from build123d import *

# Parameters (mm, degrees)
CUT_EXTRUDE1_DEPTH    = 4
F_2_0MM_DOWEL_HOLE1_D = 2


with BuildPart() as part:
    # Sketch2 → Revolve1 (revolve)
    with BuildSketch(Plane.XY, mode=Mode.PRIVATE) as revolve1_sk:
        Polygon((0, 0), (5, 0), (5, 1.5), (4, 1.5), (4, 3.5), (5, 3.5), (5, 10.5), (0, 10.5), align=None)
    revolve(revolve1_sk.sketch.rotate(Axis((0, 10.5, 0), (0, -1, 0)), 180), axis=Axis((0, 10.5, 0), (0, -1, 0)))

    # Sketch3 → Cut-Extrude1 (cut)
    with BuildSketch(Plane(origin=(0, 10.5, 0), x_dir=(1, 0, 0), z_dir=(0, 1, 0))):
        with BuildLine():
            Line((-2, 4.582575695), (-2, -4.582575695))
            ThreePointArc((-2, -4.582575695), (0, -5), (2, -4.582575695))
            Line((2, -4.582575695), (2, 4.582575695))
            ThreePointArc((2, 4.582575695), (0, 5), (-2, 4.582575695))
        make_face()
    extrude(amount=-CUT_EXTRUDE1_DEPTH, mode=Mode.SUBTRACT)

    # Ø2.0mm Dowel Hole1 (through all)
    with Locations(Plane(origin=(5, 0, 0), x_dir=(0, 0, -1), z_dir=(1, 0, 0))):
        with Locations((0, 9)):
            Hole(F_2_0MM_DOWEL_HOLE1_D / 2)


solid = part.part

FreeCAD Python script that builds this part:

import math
import FreeCAD as App
import Part
import Sketcher
from FreeCAD import Vector
Q = App.Units.Quantity


def add_polygon(sketch, points):
    """Adds a closed chain of lines whose ends are joined by coincident constraints."""
    first, n = sketch.GeometryCount, len(points)
    for a, b in zip(points, points[1:] + points[:1]):
        sketch.addGeometry(Part.LineSegment(App.Vector(*a, 0), App.Vector(*b, 0)), False)
    for i in range(n):
        sketch.addConstraint(Sketcher.Constraint("Coincident", first + i, 2, first + (i + 1) % n, 1))

doc = App.newDocument("Part")
params = doc.addObject("Spreadsheet::Sheet", "Params")
for row, (alias, value) in enumerate([
    ("sketch1_width", "5 mm"),
    ("sketch1_width2", "1 mm"),
    ("sketch1_height", "2 mm"),
    ("sketch1_height2", "7 mm"),
    ("sketch1_height3", "1.5 mm"),
    ("revolution_angle", "360 deg"),
    ("sketch2_radius", "5 mm"),
    ("pocket1_length", "4 mm"),
    ("sketch3_diameter", "2 mm"),
    ("hole_diameter", "2 mm"),
], start=1):
    params.set(f"A{row}", alias)
    params.set(f"B{row}", "=" + value)
    params.setAlias(f"B{row}", alias)

body = doc.addObject("PartDesign::Body", "Body")

sketch1 = doc.addObject("Sketcher::SketchObject", "Sketch")
body.addObject(sketch1)
sketch1.AttachmentSupport = (doc.XY_Plane, [""])
sketch1.MapMode = "FlatFace"
add_polygon(sketch1, [(0, 0), (5, 0), (5, 1.5), (4, 1.5), (4, 3.5), (5, 3.5), (5, 10.5), (0, 10.5)])
sketch1.addConstraint(Sketcher.Constraint("Horizontal", 0))
sketch1.addConstraint(Sketcher.Constraint("Vertical", 1))
sketch1.addConstraint(Sketcher.Constraint("Horizontal", 2))
sketch1.addConstraint(Sketcher.Constraint("Vertical", 3))
sketch1.addConstraint(Sketcher.Constraint("Horizontal", 4))
sketch1.addConstraint(Sketcher.Constraint("Vertical", 5))
sketch1.addConstraint(Sketcher.Constraint("Horizontal", 6))
sketch1.addConstraint(Sketcher.Constraint("Vertical", 7))
sketch1.addConstraint(Sketcher.Constraint("Coincident", 7, 2, -1, 1))
sketch1.addConstraint(Sketcher.Constraint("Vertical", 1, 2, 4, 2))
sketch1.addConstraint(Sketcher.Constraint("DistanceX", 0, 1, 0, 2, Q("5 mm")))
sketch1.addConstraint(Sketcher.Constraint("DistanceX", 2, 2, 2, 1, Q("1 mm")))
sketch1.addConstraint(Sketcher.Constraint("DistanceY", 3, 1, 3, 2, Q("2 mm")))
sketch1.addConstraint(Sketcher.Constraint("DistanceY", 5, 1, 5, 2, Q("7 mm")))
sketch1.addConstraint(Sketcher.Constraint("DistanceY", 1, 1, 1, 2, Q("1.5 mm")))
sketch1.setExpression("Constraints[18]", "Params.sketch1_width")
sketch1.setExpression("Constraints[19]", "Params.sketch1_width2")
sketch1.setExpression("Constraints[20]", "Params.sketch1_height")
sketch1.setExpression("Constraints[21]", "Params.sketch1_height2")
sketch1.setExpression("Constraints[22]", "Params.sketch1_height3")
revolution = doc.addObject("PartDesign::Revolution", "Revolution")
body.addObject(revolution)
revolution.Profile = sketch1
revolution.ReferenceAxis = (sketch1, ["V_Axis"])
revolution.setExpression("Angle", "Params.revolution_angle")

sketch2 = doc.addObject("Sketcher::SketchObject", "Sketch001")
body.addObject(sketch2)
sketch2.AttachmentSupport = (doc.XZ_Plane, [""])
sketch2.MapMode = "FlatFace"
sketch2.AttachmentOffset = App.Placement(Vector(0, 0, -10.5), App.Rotation())
sketch2.addGeometry(Part.LineSegment(Vector(-2, -4.6, 0), Vector(-2, 4.6, 0)), False)
sketch2.addGeometry(Part.ArcOfCircle(Part.Circle(Vector(0, 0, 0), Vector(0, 0, 1), 5), math.radians(66), math.radians(114)), False)
sketch2.addGeometry(Part.LineSegment(Vector(2, 4.6, 0), Vector(2, -4.6, 0)), False)
sketch2.addGeometry(Part.ArcOfCircle(Part.Circle(Vector(0, 0, 0), Vector(0, 0, 1), 5), math.radians(-114), math.radians(-66)), False)
sketch2.addConstraint(Sketcher.Constraint("Coincident", 0, 2, 1, 2))
sketch2.addConstraint(Sketcher.Constraint("Coincident", 1, 1, 2, 1))
sketch2.addConstraint(Sketcher.Constraint("Coincident", 2, 2, 3, 2))
sketch2.addConstraint(Sketcher.Constraint("Coincident", 3, 1, 0, 1))
sketch2.addConstraint(Sketcher.Constraint("Vertical", 0))
sketch2.addConstraint(Sketcher.Constraint("Vertical", 2))
sketch2.addConstraint(Sketcher.Constraint("Coincident", 1, 3, -1, 1))
sketch2.addConstraint(Sketcher.Constraint("Coincident", 3, 3, -1, 1))
sketch2.addConstraint(Sketcher.Constraint("Equal", 1, 3))
sketch2.addConstraint(Sketcher.Constraint("Horizontal", 0, 2, 1, 1))
sketch2.addConstraint(Sketcher.Constraint("Radius", 1, Q("5 mm")))
sketch2.addConstraint(Sketcher.Constraint("DistanceX", 0, 2, -1, 1, Q("2 mm")))
sketch2.setExpression("Constraints[10]", "Params.sketch2_radius")
pocket1 = doc.addObject("PartDesign::Pocket", "Pocket")
body.addObject(pocket1)
pocket1.Profile = sketch2
pocket1.setExpression("Length", "Params.pocket1_length")
pocket1.Reversed = True

sketch3 = doc.addObject("Sketcher::SketchObject", "Sketch002")
body.addObject(sketch3)
sketch3.AttachmentSupport = (doc.YZ_Plane, [""])
sketch3.MapMode = "FlatFace"
sketch3.AttachmentOffset = App.Placement(Vector(0, 0, 5), App.Rotation())
sketch3.addGeometry(Part.Circle(Vector(9, 0, 0), Vector(0, 0, 1), 1), False)
sketch3.addConstraint(Sketcher.Constraint("PointOnObject", 0, 3, -1))
sketch3.addConstraint(Sketcher.Constraint("Diameter", 0, Q("2 mm")))
sketch3.addConstraint(Sketcher.Constraint("DistanceX", -1, 1, 0, 3, Q("9 mm")))
sketch3.setExpression("Constraints[1]", "Params.sketch3_diameter")
doc.recompute()
hole = doc.addObject("PartDesign::Hole", "Hole")
body.addObject(hole)
hole.Profile = sketch3
hole.ThreadType = "None"
hole.setExpression("Diameter", "Params.hole_diameter")
hole.DepthType = "ThroughAll"

doc.recompute()
